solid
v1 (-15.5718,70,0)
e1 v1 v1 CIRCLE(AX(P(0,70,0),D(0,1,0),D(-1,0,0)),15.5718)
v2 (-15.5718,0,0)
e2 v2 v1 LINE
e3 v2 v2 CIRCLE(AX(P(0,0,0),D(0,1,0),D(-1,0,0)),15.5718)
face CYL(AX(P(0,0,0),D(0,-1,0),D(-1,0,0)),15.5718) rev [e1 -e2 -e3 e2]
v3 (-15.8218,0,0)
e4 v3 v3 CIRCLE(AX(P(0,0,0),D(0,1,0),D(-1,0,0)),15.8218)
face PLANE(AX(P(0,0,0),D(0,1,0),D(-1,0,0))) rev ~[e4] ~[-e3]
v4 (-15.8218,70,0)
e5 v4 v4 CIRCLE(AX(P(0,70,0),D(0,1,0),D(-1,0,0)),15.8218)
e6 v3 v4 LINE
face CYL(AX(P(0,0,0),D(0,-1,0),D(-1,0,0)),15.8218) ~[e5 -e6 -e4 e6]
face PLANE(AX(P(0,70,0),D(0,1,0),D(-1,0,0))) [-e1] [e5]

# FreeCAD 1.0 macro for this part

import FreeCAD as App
import Part
import Sketcher

V = App.Vector
Q = App.Units.Quantity

doc = App.newDocument("Part")
body = doc.addObject("PartDesign::Body", "Body")

# Sketch on XZ plane
sketch1 = doc.addObject("Sketcher::SketchObject", "Sketch")
body.addObject(sketch1)
sketch1.AttachmentSupport = (doc.XZ_Plane, [""])
sketch1.MapMode = "FlatFace"
sketch1.addGeometry(Part.Circle(V(0, 0, 0), V(0, 0, 1), 16), False)
sketch1.addGeometry(Part.Circle(V(0, 0, 0), V(0, 0, 1), 16), False)
sketch1.addConstraint(Sketcher.Constraint("Coincident", 0, 3, -1, 1))
sketch1.addConstraint(Sketcher.Constraint("Coincident", 1, 3, -1, 1))
sketch1.addConstraint(Sketcher.Constraint("Diameter", 0, Q("31.6436 mm")))
sketch1.addConstraint(Sketcher.Constraint("Diameter", 1, Q("31.1436 mm")))
pad1 = doc.addObject("PartDesign::Pad", "Pad")
body.addObject(pad1)
pad1.Profile = sketch1
pad1.Length = 70
pad1.Reversed = True

doc.recompute()
